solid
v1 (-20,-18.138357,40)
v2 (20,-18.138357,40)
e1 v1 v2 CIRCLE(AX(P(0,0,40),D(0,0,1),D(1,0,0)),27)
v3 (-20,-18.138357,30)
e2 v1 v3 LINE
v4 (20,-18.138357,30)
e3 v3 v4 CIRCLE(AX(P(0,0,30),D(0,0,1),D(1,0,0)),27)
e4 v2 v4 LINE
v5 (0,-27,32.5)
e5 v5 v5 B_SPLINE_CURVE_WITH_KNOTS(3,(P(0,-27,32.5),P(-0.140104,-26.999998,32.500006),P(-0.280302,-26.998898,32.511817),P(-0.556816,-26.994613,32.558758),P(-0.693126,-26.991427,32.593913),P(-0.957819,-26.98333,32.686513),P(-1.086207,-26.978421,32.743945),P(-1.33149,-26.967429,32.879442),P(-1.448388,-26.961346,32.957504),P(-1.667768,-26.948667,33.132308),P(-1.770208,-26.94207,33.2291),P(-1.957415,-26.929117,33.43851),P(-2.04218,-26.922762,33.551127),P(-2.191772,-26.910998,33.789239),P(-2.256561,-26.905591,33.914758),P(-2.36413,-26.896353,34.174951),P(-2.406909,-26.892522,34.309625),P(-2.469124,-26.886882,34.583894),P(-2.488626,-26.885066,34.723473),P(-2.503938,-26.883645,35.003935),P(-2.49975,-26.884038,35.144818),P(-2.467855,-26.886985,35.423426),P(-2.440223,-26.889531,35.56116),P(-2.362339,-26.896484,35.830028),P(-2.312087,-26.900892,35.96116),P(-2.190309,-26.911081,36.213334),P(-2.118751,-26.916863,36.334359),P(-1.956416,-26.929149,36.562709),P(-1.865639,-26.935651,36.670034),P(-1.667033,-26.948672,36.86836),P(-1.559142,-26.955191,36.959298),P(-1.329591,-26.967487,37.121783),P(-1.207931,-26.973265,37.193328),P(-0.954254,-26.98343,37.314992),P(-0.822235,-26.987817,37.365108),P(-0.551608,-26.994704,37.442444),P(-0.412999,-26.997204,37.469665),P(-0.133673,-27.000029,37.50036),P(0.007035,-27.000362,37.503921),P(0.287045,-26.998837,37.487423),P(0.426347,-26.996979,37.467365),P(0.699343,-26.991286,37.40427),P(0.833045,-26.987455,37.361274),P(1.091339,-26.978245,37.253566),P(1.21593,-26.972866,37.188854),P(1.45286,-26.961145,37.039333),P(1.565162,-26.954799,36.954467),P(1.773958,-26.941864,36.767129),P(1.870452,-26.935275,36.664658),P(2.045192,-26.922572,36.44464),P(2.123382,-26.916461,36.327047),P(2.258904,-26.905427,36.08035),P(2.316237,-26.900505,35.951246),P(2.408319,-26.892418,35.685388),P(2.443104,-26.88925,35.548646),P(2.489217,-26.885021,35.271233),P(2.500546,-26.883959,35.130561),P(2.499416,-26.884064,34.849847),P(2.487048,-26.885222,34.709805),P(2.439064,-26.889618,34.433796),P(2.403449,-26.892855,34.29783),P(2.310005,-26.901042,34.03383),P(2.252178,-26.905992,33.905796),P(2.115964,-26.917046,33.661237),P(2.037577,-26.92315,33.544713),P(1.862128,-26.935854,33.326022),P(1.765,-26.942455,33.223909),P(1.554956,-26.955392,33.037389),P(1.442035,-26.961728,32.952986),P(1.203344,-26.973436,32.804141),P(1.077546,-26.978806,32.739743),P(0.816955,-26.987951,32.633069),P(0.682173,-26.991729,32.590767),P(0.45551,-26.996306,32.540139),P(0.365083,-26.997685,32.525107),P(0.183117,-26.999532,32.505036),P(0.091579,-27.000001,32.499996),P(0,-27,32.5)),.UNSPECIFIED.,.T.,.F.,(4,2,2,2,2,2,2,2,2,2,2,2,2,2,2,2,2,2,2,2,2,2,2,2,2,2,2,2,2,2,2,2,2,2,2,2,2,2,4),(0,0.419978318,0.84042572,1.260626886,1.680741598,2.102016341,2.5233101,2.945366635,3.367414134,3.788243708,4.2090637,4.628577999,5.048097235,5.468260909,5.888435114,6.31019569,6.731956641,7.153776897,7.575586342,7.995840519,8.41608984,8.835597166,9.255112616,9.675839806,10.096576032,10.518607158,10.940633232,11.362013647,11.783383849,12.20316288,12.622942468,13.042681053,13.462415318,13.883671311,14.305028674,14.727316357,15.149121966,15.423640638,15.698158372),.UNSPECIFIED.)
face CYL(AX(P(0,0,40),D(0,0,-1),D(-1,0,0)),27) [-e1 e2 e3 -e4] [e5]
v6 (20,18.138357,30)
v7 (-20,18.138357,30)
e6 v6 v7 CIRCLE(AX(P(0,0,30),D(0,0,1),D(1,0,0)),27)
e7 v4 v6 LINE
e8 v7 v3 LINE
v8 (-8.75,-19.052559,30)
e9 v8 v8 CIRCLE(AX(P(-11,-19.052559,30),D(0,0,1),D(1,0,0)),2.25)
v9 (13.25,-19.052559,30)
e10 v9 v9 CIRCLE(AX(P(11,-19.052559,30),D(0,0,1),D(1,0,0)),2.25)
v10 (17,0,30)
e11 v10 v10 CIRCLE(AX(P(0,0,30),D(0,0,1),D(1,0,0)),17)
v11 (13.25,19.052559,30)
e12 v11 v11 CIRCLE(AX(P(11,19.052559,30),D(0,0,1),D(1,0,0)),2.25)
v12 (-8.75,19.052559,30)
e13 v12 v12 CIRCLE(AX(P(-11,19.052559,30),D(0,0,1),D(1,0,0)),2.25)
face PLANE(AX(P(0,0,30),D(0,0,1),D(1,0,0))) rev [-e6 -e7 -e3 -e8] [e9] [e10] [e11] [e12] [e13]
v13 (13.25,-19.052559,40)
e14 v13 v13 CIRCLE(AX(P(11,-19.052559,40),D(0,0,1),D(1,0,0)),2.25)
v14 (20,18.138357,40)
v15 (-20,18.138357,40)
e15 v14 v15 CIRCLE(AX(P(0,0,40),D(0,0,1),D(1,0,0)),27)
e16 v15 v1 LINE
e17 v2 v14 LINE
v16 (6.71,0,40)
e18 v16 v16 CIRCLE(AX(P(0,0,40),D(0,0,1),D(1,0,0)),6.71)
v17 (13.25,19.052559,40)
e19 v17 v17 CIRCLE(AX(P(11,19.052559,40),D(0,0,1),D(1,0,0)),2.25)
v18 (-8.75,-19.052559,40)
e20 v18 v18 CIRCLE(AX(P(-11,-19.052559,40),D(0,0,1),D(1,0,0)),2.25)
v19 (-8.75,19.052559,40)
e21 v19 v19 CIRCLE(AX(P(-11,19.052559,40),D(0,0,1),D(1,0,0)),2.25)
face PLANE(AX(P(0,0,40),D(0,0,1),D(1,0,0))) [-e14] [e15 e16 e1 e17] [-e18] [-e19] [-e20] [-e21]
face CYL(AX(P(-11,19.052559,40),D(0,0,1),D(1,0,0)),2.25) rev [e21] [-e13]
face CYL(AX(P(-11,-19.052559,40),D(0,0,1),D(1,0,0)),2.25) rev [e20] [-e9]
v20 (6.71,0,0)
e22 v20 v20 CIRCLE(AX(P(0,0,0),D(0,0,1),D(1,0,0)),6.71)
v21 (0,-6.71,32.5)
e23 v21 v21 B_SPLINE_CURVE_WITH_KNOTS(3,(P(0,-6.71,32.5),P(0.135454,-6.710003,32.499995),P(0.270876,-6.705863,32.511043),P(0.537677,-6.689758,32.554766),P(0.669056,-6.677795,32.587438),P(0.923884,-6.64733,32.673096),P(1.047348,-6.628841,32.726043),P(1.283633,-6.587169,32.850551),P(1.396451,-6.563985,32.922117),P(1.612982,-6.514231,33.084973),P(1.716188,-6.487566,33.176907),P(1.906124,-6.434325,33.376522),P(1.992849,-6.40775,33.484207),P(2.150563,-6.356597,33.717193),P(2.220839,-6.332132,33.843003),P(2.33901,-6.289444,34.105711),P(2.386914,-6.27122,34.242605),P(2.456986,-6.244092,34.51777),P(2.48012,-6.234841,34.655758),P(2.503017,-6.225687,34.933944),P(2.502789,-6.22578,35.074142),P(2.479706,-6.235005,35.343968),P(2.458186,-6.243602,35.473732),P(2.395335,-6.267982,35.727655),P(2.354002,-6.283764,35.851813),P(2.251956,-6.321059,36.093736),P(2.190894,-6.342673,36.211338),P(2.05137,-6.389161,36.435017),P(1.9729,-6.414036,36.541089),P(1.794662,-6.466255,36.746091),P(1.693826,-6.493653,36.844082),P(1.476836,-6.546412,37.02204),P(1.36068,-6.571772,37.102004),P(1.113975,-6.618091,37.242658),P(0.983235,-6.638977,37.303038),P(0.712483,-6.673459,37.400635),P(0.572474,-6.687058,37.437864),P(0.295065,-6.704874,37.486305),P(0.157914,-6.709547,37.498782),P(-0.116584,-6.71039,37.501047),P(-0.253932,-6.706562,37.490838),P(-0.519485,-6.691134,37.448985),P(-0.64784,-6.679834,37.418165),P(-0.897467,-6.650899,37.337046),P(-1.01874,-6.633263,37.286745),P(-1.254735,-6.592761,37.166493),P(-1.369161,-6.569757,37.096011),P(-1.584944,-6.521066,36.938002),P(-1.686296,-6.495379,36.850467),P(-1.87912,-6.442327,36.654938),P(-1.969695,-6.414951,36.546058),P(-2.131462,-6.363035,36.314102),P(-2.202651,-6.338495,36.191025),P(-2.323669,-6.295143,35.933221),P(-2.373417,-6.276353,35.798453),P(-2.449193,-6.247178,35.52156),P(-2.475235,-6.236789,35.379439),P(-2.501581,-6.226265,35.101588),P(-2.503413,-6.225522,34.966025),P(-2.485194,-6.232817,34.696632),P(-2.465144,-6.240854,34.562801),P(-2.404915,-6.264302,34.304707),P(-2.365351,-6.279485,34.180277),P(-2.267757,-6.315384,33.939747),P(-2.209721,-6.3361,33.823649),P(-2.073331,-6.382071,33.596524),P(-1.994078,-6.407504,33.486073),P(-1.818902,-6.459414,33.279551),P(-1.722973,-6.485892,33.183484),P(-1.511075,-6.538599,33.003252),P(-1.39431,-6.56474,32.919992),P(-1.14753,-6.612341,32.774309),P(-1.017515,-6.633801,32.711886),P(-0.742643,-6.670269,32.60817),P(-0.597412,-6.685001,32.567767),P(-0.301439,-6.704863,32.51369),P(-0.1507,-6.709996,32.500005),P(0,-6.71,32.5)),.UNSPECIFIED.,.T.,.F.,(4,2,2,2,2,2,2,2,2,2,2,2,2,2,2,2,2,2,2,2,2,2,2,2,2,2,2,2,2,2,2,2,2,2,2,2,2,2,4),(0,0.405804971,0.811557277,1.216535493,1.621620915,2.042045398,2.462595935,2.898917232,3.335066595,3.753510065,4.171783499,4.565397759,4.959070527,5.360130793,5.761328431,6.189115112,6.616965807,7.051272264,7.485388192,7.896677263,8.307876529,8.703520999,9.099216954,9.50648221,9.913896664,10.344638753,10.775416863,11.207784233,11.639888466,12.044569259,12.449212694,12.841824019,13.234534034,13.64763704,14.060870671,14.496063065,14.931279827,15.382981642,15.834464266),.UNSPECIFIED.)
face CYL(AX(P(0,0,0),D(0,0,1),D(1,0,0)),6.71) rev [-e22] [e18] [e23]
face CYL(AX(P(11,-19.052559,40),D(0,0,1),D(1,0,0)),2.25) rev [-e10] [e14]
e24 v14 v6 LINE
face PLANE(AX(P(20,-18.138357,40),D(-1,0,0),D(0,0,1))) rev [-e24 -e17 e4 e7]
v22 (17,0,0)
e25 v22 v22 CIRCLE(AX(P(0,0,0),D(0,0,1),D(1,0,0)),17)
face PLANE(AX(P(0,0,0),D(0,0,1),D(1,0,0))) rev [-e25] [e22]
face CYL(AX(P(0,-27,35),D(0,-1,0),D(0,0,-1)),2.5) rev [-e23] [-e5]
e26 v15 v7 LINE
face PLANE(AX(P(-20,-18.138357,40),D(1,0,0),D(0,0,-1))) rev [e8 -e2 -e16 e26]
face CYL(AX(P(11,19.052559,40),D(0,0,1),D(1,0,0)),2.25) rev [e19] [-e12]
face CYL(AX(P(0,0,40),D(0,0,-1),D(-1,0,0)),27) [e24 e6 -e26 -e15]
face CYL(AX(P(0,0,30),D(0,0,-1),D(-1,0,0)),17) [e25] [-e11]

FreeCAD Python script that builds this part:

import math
import FreeCAD as App
import Part
import Sketcher

V = App.Vector
Q = App.Units.Quantity

doc = App.newDocument("Part")
params = doc.addObject("Spreadsheet::Sheet", "Params")
for row, (alias, value) in enumerate([
    ("sketch1_diameter", "34 mm"),
    ("pad1_length", "30 mm"),
    ("sketch2_radius", "27 mm"),
    ("pad2_length", "10 mm"),
    ("sketch3_diameter", "13.42 mm"),
    ("sketch4_diameter", "5 mm"),
    ("sketch5_diameter", "4.5 mm"),
    ("hole_diameter", "4.5 mm"),
], start=1):
    params.set(f"A{row}", alias)
    params.set(f"B{row}", "=" + value)
    params.setAlias(f"B{row}", alias)

body = doc.addObject("PartDesign::Body", "Body")

sketch1 = body.newObject("Sketcher::SketchObject", "Sketch")
sketch1.AttachmentSupport = (doc.getObject("XY_Plane"), [""])
sketch1.MapMode = "FlatFace"
sketch1.addGeometry(Part.Circle(V(0, 0, 0), V(0, 0, 1), 17), False)
sketch1.addConstraint(Sketcher.Constraint("Coincident", 0, 3, -1, 1))
sketch1.addConstraint(Sketcher.Constraint("Diameter", 0, Q("34 mm")))
sketch1.setExpression("Constraints[1]", "Params.sketch1_diameter")
pad1 = body.newObject("PartDesign::Pad", "Pad")
pad1.Profile = sketch1
pad1.setExpression("Length", "Params.pad1_length")

sketch2 = body.newObject("Sketcher::SketchObject", "Sketch001")
sketch2.AttachmentSupport = (doc.getObject("XY_Plane"), [""])
sketch2.MapMode = "FlatFace"
sketch2.AttachmentOffset = App.Placement(V(0, 0, 30), App.Rotation())
sketch2.addGeometry(Part.LineSegment(V(-20, 18, 0), V(-20, -18, 0)), False)
sketch2.addGeometry(Part.ArcOfCircle(Part.Circle(V(0, 0, 0), V(0, 0, 1), 27), math.radians(-138), math.radians(-42)), False)
sketch2.addGeometry(Part.LineSegment(V(20, -18, 0), V(20, 18, 0)), False)
sketch2.addGeometry(Part.ArcOfCircle(Part.Circle(V(0, 0, 0), V(0, 0, 1), 27), math.radians(42), math.radians(138)), False)
sketch2.addConstraint(Sketcher.Constraint("Coincident", 0, 2, 1, 1))
sketch2.addConstraint(Sketcher.Constraint("Coincident", 1, 2, 2, 1))
sketch2.addConstraint(Sketcher.Constraint("Coincident", 2, 2, 3, 1))
sketch2.addConstraint(Sketcher.Constraint("Coincident", 3, 2, 0, 1))
sketch2.addConstraint(Sketcher.Constraint("Vertical", 0))
sketch2.addConstraint(Sketcher.Constraint("Vertical", 2))
sketch2.addConstraint(Sketcher.Constraint("Coincident", 1, 3, -1, 1))
sketch2.addConstraint(Sketcher.Constraint("Coincident", 3, 3, -1, 1))
sketch2.addConstraint(Sketcher.Constraint("Equal", 1, 3))
sketch2.addConstraint(Sketcher.Constraint("Horizontal", 0, 2, 1, 2))
sketch2.addConstraint(Sketcher.Constraint("Radius", 1, Q("27 mm")))
sketch2.addConstraint(Sketcher.Constraint("DistanceX", 0, 2, -1, 1, Q("20 mm")))
sketch2.setExpression("Constraints[10]", "Params.sketch2_radius")
pad2 = body.newObject("PartDesign::Pad", "Pad001")
pad2.Profile = sketch2
pad2.setExpression("Length", "Params.pad2_length")

sketch3 = body.newObject("Sketcher::SketchObject", "Sketch002")
sketch3.AttachmentSupport = (doc.getObject("XY_Plane"), [""])
sketch3.MapMode = "FlatFace"
sketch3.AttachmentOffset = App.Placement(V(0, 0, 40), App.Rotation())
sketch3.addGeometry(Part.Circle(V(0, 0, 0), V(0, 0, 1), 7), False)
sketch3.addConstraint(Sketcher.Constraint("Coincident", 0, 3, -1, 1))
sketch3.addConstraint(Sketcher.Constraint("Diameter", 0, Q("13.42 mm")))
sketch3.setExpression("Constraints[1]", "Params.sketch3_diameter")
pocket1 = body.newObject("PartDesign::Pocket", "Pocket")
pocket1.Profile = sketch3
pocket1.Type = "ThroughAll"

sketch4 = body.newObject("Sketcher::SketchObject", "Sketch003")
sketch4.AttachmentSupport = (doc.getObject("XZ_Plane"), [""])
sketch4.MapMode = "FlatFace"
sketch4.AttachmentOffset = App.Placement(V(0, 0, 27), App.Rotation())
sketch4.addGeometry(Part.Circle(V(0, 35, 0), V(0, 0, 1), 2.5), False)
sketch4.addConstraint(Sketcher.Constraint("PointOnObject", 0, 3, -2))
sketch4.addConstraint(Sketcher.Constraint("Diameter", 0, Q("5 mm")))
sketch4.addConstraint(Sketcher.Constraint("DistanceY", -1, 1, 0, 3, Q("35 mm")))
sketch4.setExpression("Constraints[1]", "Params.sketch4_diameter")
pocket2 = body.newObject("PartDesign::Pocket", "Pocket001")
pocket2.Profile = sketch4
pocket2.Type = "UpToFirst"

sketch5 = body.newObject("Sketcher::SketchObject", "Sketch004")
sketch5.AttachmentSupport = (doc.getObject("XY_Plane"), [""])
sketch5.MapMode = "FlatFace"
sketch5.AttachmentOffset = App.Placement(V(0, 0, 40), App.Rotation())
sketch5.addGeometry(Part.Circle(V(-11, -19.1, 0), V(0, 0, 1), 2.2), False)
sketch5.addGeometry(Part.Circle(V(-11, 19.1, 0), V(0, 0, 1), 2.2), False)
sketch5.addGeometry(Part.Circle(V(11, 19.1, 0), V(0, 0, 1), 2.2), False)
sketch5.addGeometry(Part.Circle(V(11, -19.1, 0), V(0, 0, 1), 2.2), False)
sketch5.addConstraint(Sketcher.Constraint("Equal", 0, 1))
sketch5.addConstraint(Sketcher.Constraint("Equal", 1, 2))
sketch5.addConstraint(Sketcher.Constraint("Equal", 2, 3))
sketch5.addConstraint(Sketcher.Constraint("Symmetric", 0, 3, 2, 3, -1, 1))
sketch5.addConstraint(Sketcher.Constraint("Symmetric", 1, 3, 3, 3, -1, 1))
sketch5.addConstraint(Sketcher.Constraint("Symmetric", 1, 3, 2, 3, -2))
sketch5.addConstraint(Sketcher.Constraint("Diameter", 0, Q("4.5 mm")))
sketch5.addConstraint(Sketcher.Constraint("DistanceX", 0, 3, -1, 1, Q("11 mm")))
sketch5.addConstraint(Sketcher.Constraint("DistanceY", 0, 3, -1, 1, Q("19.052559 mm")))
sketch5.setExpression("Constraints[6]", "Params.sketch5_diameter")
doc.recompute()
hole = body.newObject("PartDesign::Hole", "Hole")
hole.Profile = sketch5
hole.ThreadType = "None"
hole.setExpression("Diameter", "Params.hole_diameter")
hole.DepthType = "ThroughAll"

doc.recompute()
